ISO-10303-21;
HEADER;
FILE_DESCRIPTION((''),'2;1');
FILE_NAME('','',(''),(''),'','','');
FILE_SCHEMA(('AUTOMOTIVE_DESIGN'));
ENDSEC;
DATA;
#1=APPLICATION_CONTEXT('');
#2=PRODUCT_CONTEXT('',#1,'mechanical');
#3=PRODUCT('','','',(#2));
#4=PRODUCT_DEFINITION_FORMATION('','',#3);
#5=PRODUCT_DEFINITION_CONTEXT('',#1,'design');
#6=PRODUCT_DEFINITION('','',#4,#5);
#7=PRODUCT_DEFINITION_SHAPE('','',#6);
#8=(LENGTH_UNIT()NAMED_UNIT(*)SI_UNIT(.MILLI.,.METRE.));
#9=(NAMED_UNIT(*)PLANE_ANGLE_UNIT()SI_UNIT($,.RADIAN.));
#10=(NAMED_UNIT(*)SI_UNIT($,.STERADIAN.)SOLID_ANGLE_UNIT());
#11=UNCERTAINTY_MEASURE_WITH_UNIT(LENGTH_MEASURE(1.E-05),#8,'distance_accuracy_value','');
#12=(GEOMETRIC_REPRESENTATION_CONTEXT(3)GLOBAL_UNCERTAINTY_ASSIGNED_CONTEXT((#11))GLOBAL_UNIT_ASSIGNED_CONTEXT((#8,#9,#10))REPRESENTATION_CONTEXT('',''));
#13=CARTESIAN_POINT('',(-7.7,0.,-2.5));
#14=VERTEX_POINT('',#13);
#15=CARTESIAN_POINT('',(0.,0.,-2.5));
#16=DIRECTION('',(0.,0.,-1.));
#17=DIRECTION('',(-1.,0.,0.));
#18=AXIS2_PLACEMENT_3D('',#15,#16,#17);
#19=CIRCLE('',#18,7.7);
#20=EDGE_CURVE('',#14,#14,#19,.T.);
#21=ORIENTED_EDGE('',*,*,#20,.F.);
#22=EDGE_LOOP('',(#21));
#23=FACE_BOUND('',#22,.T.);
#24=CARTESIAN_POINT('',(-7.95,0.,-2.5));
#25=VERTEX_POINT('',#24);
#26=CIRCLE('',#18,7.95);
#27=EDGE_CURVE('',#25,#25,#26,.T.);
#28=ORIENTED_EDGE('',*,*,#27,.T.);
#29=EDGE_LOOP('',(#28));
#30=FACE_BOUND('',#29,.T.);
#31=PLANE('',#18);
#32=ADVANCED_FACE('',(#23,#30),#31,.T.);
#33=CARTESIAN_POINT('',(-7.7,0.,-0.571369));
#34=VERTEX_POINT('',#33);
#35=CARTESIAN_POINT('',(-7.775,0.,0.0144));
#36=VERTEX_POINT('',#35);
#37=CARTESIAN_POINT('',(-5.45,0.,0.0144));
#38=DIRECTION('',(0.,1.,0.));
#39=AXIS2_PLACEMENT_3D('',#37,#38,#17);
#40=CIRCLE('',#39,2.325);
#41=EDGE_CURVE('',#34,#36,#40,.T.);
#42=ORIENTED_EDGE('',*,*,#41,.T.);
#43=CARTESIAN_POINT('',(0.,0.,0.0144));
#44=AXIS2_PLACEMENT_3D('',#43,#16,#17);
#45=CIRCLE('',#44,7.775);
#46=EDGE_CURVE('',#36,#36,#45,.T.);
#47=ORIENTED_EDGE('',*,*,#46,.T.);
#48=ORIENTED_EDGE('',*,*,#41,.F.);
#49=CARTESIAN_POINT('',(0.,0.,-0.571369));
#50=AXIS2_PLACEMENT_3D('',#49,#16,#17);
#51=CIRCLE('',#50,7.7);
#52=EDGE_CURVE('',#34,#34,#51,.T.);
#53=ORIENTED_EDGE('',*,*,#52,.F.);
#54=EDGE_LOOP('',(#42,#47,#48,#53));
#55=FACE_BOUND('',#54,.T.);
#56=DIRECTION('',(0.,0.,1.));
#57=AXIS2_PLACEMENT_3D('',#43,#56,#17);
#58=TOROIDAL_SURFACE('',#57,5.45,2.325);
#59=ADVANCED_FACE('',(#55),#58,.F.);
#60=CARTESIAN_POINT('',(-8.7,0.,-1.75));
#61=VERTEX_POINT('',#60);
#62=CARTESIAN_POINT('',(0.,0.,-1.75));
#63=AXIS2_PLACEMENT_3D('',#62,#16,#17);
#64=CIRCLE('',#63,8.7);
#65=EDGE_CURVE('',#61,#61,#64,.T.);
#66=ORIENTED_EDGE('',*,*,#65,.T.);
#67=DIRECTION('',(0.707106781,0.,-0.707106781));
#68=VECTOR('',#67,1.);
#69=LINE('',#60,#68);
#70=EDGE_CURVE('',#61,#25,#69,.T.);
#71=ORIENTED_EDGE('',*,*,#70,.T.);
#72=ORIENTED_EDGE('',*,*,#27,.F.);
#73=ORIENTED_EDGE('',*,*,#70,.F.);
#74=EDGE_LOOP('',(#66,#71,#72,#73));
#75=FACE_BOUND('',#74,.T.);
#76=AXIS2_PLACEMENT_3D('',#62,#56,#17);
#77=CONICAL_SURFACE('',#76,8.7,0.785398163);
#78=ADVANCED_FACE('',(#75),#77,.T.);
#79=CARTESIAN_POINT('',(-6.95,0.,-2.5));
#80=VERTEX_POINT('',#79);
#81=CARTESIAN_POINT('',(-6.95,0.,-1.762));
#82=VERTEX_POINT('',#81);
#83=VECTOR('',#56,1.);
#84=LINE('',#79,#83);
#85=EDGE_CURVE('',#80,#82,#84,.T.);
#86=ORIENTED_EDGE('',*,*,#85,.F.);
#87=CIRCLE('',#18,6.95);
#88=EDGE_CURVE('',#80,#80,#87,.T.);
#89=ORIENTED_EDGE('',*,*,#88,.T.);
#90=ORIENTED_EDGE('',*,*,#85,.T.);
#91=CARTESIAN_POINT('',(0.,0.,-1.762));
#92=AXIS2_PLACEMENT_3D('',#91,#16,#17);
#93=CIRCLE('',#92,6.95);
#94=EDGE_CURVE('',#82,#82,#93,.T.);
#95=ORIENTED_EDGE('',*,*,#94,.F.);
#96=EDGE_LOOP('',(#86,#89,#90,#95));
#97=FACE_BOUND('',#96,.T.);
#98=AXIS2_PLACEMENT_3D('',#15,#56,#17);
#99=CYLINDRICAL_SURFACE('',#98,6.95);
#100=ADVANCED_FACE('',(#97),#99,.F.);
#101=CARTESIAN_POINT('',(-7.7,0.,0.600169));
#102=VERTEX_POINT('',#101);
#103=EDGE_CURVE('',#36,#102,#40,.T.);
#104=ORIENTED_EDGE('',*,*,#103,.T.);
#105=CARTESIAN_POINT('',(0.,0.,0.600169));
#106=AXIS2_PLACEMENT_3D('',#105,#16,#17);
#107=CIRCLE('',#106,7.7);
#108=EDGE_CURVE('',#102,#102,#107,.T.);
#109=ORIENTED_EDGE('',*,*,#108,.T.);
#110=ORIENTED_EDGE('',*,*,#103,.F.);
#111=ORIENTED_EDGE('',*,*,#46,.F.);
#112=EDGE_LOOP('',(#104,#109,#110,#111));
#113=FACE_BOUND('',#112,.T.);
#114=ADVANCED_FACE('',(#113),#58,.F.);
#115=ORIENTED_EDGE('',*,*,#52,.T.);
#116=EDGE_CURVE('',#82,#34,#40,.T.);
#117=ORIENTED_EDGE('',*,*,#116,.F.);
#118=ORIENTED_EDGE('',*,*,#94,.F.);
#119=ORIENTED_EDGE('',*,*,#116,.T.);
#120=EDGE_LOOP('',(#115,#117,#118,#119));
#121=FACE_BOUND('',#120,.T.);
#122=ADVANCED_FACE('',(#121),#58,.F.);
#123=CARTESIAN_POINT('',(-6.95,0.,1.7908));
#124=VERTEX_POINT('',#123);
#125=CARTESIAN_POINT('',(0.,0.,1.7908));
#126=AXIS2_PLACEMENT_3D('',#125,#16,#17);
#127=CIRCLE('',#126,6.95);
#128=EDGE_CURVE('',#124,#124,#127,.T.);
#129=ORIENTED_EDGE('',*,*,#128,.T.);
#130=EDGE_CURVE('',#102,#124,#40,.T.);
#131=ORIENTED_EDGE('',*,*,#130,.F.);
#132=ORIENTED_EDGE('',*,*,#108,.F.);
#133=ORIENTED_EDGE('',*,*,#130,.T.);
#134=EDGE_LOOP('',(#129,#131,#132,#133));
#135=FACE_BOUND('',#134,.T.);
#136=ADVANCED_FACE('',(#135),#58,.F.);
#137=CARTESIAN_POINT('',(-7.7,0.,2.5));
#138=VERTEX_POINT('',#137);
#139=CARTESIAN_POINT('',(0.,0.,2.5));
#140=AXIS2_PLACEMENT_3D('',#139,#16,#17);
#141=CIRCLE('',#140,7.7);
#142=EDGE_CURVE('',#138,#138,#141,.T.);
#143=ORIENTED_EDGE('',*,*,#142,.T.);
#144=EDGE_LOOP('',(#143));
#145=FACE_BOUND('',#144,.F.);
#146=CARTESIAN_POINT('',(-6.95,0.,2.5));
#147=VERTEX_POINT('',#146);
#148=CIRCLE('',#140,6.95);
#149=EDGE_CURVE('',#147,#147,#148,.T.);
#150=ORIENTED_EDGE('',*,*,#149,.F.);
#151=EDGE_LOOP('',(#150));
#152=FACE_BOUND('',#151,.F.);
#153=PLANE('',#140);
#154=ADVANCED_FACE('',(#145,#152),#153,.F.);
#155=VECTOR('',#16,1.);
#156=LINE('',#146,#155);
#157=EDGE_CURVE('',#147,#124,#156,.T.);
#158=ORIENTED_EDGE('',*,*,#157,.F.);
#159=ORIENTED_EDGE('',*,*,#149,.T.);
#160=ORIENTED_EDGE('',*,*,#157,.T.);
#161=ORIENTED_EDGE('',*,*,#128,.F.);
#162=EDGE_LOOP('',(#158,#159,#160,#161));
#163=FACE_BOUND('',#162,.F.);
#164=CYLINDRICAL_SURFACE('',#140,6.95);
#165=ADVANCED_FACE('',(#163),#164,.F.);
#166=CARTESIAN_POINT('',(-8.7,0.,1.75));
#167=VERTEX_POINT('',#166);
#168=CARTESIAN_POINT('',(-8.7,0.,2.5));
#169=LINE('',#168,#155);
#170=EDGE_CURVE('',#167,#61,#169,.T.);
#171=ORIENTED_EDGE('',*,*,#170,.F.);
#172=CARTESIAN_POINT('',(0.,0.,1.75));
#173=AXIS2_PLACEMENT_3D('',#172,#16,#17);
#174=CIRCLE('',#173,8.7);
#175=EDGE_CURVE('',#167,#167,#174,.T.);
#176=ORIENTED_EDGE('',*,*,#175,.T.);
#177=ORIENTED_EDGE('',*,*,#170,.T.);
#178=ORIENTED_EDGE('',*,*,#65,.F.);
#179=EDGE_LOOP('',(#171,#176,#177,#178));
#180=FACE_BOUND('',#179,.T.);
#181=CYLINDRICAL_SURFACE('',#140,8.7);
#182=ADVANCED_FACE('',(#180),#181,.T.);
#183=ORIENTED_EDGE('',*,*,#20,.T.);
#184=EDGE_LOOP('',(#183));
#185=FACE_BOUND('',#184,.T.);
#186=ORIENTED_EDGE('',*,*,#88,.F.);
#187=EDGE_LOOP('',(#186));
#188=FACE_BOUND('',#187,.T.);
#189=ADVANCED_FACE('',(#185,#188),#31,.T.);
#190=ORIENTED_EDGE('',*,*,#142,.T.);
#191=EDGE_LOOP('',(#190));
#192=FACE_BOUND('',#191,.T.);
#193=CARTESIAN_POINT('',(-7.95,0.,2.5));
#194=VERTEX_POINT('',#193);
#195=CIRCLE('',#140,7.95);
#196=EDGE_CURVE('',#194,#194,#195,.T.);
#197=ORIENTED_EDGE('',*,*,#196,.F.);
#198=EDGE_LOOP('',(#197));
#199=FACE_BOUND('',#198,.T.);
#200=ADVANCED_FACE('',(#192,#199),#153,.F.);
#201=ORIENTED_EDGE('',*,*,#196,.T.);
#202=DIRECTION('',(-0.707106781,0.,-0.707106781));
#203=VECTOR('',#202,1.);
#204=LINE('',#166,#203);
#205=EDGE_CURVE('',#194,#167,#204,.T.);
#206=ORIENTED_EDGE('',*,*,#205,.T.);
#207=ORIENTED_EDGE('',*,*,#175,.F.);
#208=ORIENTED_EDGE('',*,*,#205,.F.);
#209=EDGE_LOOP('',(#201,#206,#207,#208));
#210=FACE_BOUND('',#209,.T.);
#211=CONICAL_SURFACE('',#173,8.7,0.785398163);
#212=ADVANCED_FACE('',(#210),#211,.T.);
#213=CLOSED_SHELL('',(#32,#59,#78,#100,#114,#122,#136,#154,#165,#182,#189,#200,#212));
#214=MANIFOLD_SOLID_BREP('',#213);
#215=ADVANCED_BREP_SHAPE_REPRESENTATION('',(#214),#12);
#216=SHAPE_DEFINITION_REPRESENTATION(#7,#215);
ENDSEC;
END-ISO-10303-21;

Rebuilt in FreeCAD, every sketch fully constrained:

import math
import FreeCAD as App
import Part
import Sketcher
Q = App.Units.Quantity


def edges_at(feature, points):
    """Names of the edges that pass closest to the given points."""
    edges = feature.Shape.Edges
    near = lambda p: min(range(len(edges)), key=lambda i: edges[i].distToShape(Part.Vertex(*p))[0])
    return sorted({f"Edge{near(p) + 1}" for p in points})

doc = App.newDocument("Part")
params = doc.addObject("Spreadsheet::Sheet", "Params")
for row, (alias, value) in enumerate([
    ("sketch1_height", "5 mm"),
    ("sketch1_width", "1.75 mm"),
    ("revolution_angle", "360 deg"),
    ("chamfer_size", "0.75 mm"),
], start=1):
    params.set(f"A{row}", alias)
    params.set(f"B{row}", "=" + value)
    params.setAlias(f"B{row}", alias)

body = doc.addObject("PartDesign::Body", "Body")

# Sketch on XZ plane
sketch1 = doc.addObject("Sketcher::SketchObject", "Sketch")
body.addObject(sketch1)
sketch1.AttachmentSupport = (doc.XZ_Plane, [""])
sketch1.MapMode = "FlatFace"
sketch1.addGeometry(Part.LineSegment(App.Vector(-7, 2.5, 0), App.Vector(-7, 1.8, 0)), False)
sketch1.addGeometry(Part.ArcOfCircle(Part.Circle(App.Vector(-5.5, 0, 0), App.Vector(0, 0, 1), 2.3), math.radians(130), math.radians(230)), False)
sketch1.addGeometry(Part.LineSegment(App.Vector(-7, -1.8, 0), App.Vector(-7, -2.5, 0)), False)
sketch1.addGeometry(Part.LineSegment(App.Vector(-7, -2.5, 0), App.Vector(-8.7, -2.5, 0)), False)
sketch1.addGeometry(Part.LineSegment(App.Vector(-8.7, -2.5, 0), App.Vector(-8.7, 2.5, 0)), False)
sketch1.addGeometry(Part.LineSegment(App.Vector(-8.7, 2.5, 0), App.Vector(-7, 2.5, 0)), False)
sketch1.addConstraint(Sketcher.Constraint("Coincident", 0, 2, 1, 1))
sketch1.addConstraint(Sketcher.Constraint("Coincident", 1, 2, 2, 1))
sketch1.addConstraint(Sketcher.Constraint("Coincident", 2, 2, 3, 1))
sketch1.addConstraint(Sketcher.Constraint("Coincident", 3, 2, 4, 1))
sketch1.addConstraint(Sketcher.Constraint("Coincident", 4, 2, 5, 1))
sketch1.addConstraint(Sketcher.Constraint("Coincident", 5, 2, 0, 1))
sketch1.addConstraint(Sketcher.Constraint("Vertical", 0))
sketch1.addConstraint(Sketcher.Constraint("Vertical", 2))
sketch1.addConstraint(Sketcher.Constraint("Horizontal", 3))
sketch1.addConstraint(Sketcher.Constraint("Vertical", 4))
sketch1.addConstraint(Sketcher.Constraint("Horizontal", 5))
sketch1.addConstraint(Sketcher.Constraint("Symmetric", 2, 2, 5, 2, -1))
sketch1.addConstraint(Sketcher.Constraint("DistanceY", 4, 1, 4, 2, Q("5 mm")))
sketch1.addConstraint(Sketcher.Constraint("Radius", 1, Q("2.325 mm")))
sketch1.addConstraint(Sketcher.Constraint("DistanceX", 3, 2, 3, 1, Q("1.75 mm")))
sketch1.addConstraint(Sketcher.Constraint("DistanceX", 3, 2, -1, 1, Q("8.7 mm")))
sketch1.addConstraint(Sketcher.Constraint("DistanceX", 0, 2, 1, 3, Q("1.5 mm")))
sketch1.addConstraint(Sketcher.Constraint("DistanceY", 2, 2, 2, 1, Q("0.738 mm")))
sketch1.setExpression("Constraints[12]", "Params.sketch1_height")
sketch1.setExpression("Constraints[14]", "Params.sketch1_width")
revolution = doc.addObject("PartDesign::Revolution", "Revolution")
body.addObject(revolution)
revolution.Profile = sketch1
revolution.ReferenceAxis = (sketch1, ["V_Axis"])
revolution.setExpression("Angle", "Params.revolution_angle")
doc.recompute()

chamfer = doc.addObject("PartDesign::Chamfer", "Chamfer")
body.addObject(chamfer)
chamfer.Base = (revolution, edges_at(revolution, [(8.7, 0, -2.5), (8.7, 0, 2.5)]))
chamfer.setExpression("Size", "Params.chamfer_size")

doc.recompute()
